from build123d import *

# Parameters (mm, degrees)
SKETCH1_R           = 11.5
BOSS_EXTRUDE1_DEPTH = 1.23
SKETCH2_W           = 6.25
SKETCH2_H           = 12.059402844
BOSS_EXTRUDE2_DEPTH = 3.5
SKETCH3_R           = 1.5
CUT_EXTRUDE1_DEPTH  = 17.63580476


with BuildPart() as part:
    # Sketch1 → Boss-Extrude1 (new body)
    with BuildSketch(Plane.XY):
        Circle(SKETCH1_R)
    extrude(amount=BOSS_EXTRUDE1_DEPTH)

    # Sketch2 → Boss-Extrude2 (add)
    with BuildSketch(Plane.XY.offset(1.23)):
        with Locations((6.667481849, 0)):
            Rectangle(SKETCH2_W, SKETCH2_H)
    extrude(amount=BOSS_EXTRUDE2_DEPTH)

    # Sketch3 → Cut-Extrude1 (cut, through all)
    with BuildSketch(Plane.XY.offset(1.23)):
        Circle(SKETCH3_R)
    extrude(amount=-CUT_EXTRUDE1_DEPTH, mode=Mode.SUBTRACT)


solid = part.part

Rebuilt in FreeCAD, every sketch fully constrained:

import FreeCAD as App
import Part
import Sketcher

doc = App.newDocument("Part")
params = doc.addObject("Spreadsheet::Sheet", "Params")
for row, (alias, value) in enumerate([
    ("sketch1_diameter", "23 mm"),
    ("pad1_length", "1.23 mm"),
    ("sketch2_width", "6.25 mm"),
    ("pad2_length", "3.5 mm"),
    ("sketch3_diameter", "3 mm"),
], start=1):
    params.set(f"A{row}", alias)
    params.set(f"B{row}", "=" + value)
    params.setAlias(f"B{row}", alias)

body = doc.addObject("PartDesign::Body", "Body")

# Sketch on XY plane
sketch1 = body.newObject("Sketcher::SketchObject", "Sketch")
sketch1.AttachmentSupport = (doc.getObject("XY_Plane"), [""])
sketch1.MapMode = "FlatFace"
sketch1.addGeometry(Part.Circle(App.Vector(0, 0, 0), App.Vector(0, 0, 1), 12), False)
sketch1.addConstraint([
    Sketcher.Constraint("Coincident", 0, 3, -1, 1),
    Sketcher.Constraint("Diameter", 0, 23.0),
])
sketch1.setExpression("Constraints[1]", "Params.sketch1_diameter")
pad1 = body.newObject("PartDesign::Pad", "Pad")
pad1.Profile = sketch1
pad1.setExpression("Length", "Params.pad1_length")

# Sketch on XY plane
sketch2 = body.newObject("Sketcher::SketchObject", "Sketch001")
sketch2.AttachmentSupport = (doc.getObject("XY_Plane"), [""])
sketch2.MapMode = "FlatFace"
sketch2.AttachmentOffset = App.Placement(App.Vector(0, 0, 1.23), App.Rotation())
sketch2.addGeometry([
    Part.LineSegment(App.Vector(4, 6, 0), App.Vector(4, -6, 0)),
    Part.LineSegment(App.Vector(4, -6, 0), App.Vector(10, -6, 0)),
    Part.LineSegment(App.Vector(10, -6, 0), App.Vector(10, 6, 0)),
    Part.LineSegment(App.Vector(10, 6, 0), App.Vector(4, 6, 0)),
], False)
sketch2.addConstraint([
    Sketcher.Constraint("Coincident", 0, 2, 1, 1),
    Sketcher.Constraint("Coincident", 1, 2, 2, 1),
    Sketcher.Constraint("Coincident", 2, 2, 3, 1),
    Sketcher.Constraint("Coincident", 3, 2, 0, 1),
    Sketcher.Constraint("Vertical", 0),
    Sketcher.Constraint("Horizontal", 1),
    Sketcher.Constraint("Vertical", 2),
    Sketcher.Constraint("Horizontal", 3),
    Sketcher.Constraint("DistanceX", 1, 1, 1, 2, 6.25),
    Sketcher.Constraint("DistanceY", 0, 2, -1, 1, 6.029701),
    Sketcher.Constraint("DistanceY", -1, 1, 2, 2, 6.029701),
    Sketcher.Constraint("DistanceX", -1, 1, 0, 2, 3.542482),
])
sketch2.setExpression("Constraints[8]", "Params.sketch2_width")
pad2 = body.newObject("PartDesign::Pad", "Pad001")
pad2.Profile = sketch2
pad2.setExpression("Length", "Params.pad2_length")

# Sketch on XY plane
sketch3 = body.newObject("Sketcher::SketchObject", "Sketch002")
sketch3.AttachmentSupport = (doc.getObject("XY_Plane"), [""])
sketch3.MapMode = "FlatFace"
sketch3.AttachmentOffset = App.Placement(App.Vector(0, 0, 1.23), App.Rotation())
sketch3.addGeometry(Part.Circle(App.Vector(0, 0, 0), App.Vector(0, 0, 1), 1.5), False)
sketch3.addConstraint([
    Sketcher.Constraint("Coincident", 0, 3, -1, 1),
    Sketcher.Constraint("Diameter", 0, 3.0),
])
sketch3.setExpression("Constraints[1]", "Params.sketch3_diameter")
pocket1 = body.newObject("PartDesign::Pocket", "Pocket")
pocket1.Profile = sketch3
pocket1.Type = "ThroughAll"

doc.recompute()
